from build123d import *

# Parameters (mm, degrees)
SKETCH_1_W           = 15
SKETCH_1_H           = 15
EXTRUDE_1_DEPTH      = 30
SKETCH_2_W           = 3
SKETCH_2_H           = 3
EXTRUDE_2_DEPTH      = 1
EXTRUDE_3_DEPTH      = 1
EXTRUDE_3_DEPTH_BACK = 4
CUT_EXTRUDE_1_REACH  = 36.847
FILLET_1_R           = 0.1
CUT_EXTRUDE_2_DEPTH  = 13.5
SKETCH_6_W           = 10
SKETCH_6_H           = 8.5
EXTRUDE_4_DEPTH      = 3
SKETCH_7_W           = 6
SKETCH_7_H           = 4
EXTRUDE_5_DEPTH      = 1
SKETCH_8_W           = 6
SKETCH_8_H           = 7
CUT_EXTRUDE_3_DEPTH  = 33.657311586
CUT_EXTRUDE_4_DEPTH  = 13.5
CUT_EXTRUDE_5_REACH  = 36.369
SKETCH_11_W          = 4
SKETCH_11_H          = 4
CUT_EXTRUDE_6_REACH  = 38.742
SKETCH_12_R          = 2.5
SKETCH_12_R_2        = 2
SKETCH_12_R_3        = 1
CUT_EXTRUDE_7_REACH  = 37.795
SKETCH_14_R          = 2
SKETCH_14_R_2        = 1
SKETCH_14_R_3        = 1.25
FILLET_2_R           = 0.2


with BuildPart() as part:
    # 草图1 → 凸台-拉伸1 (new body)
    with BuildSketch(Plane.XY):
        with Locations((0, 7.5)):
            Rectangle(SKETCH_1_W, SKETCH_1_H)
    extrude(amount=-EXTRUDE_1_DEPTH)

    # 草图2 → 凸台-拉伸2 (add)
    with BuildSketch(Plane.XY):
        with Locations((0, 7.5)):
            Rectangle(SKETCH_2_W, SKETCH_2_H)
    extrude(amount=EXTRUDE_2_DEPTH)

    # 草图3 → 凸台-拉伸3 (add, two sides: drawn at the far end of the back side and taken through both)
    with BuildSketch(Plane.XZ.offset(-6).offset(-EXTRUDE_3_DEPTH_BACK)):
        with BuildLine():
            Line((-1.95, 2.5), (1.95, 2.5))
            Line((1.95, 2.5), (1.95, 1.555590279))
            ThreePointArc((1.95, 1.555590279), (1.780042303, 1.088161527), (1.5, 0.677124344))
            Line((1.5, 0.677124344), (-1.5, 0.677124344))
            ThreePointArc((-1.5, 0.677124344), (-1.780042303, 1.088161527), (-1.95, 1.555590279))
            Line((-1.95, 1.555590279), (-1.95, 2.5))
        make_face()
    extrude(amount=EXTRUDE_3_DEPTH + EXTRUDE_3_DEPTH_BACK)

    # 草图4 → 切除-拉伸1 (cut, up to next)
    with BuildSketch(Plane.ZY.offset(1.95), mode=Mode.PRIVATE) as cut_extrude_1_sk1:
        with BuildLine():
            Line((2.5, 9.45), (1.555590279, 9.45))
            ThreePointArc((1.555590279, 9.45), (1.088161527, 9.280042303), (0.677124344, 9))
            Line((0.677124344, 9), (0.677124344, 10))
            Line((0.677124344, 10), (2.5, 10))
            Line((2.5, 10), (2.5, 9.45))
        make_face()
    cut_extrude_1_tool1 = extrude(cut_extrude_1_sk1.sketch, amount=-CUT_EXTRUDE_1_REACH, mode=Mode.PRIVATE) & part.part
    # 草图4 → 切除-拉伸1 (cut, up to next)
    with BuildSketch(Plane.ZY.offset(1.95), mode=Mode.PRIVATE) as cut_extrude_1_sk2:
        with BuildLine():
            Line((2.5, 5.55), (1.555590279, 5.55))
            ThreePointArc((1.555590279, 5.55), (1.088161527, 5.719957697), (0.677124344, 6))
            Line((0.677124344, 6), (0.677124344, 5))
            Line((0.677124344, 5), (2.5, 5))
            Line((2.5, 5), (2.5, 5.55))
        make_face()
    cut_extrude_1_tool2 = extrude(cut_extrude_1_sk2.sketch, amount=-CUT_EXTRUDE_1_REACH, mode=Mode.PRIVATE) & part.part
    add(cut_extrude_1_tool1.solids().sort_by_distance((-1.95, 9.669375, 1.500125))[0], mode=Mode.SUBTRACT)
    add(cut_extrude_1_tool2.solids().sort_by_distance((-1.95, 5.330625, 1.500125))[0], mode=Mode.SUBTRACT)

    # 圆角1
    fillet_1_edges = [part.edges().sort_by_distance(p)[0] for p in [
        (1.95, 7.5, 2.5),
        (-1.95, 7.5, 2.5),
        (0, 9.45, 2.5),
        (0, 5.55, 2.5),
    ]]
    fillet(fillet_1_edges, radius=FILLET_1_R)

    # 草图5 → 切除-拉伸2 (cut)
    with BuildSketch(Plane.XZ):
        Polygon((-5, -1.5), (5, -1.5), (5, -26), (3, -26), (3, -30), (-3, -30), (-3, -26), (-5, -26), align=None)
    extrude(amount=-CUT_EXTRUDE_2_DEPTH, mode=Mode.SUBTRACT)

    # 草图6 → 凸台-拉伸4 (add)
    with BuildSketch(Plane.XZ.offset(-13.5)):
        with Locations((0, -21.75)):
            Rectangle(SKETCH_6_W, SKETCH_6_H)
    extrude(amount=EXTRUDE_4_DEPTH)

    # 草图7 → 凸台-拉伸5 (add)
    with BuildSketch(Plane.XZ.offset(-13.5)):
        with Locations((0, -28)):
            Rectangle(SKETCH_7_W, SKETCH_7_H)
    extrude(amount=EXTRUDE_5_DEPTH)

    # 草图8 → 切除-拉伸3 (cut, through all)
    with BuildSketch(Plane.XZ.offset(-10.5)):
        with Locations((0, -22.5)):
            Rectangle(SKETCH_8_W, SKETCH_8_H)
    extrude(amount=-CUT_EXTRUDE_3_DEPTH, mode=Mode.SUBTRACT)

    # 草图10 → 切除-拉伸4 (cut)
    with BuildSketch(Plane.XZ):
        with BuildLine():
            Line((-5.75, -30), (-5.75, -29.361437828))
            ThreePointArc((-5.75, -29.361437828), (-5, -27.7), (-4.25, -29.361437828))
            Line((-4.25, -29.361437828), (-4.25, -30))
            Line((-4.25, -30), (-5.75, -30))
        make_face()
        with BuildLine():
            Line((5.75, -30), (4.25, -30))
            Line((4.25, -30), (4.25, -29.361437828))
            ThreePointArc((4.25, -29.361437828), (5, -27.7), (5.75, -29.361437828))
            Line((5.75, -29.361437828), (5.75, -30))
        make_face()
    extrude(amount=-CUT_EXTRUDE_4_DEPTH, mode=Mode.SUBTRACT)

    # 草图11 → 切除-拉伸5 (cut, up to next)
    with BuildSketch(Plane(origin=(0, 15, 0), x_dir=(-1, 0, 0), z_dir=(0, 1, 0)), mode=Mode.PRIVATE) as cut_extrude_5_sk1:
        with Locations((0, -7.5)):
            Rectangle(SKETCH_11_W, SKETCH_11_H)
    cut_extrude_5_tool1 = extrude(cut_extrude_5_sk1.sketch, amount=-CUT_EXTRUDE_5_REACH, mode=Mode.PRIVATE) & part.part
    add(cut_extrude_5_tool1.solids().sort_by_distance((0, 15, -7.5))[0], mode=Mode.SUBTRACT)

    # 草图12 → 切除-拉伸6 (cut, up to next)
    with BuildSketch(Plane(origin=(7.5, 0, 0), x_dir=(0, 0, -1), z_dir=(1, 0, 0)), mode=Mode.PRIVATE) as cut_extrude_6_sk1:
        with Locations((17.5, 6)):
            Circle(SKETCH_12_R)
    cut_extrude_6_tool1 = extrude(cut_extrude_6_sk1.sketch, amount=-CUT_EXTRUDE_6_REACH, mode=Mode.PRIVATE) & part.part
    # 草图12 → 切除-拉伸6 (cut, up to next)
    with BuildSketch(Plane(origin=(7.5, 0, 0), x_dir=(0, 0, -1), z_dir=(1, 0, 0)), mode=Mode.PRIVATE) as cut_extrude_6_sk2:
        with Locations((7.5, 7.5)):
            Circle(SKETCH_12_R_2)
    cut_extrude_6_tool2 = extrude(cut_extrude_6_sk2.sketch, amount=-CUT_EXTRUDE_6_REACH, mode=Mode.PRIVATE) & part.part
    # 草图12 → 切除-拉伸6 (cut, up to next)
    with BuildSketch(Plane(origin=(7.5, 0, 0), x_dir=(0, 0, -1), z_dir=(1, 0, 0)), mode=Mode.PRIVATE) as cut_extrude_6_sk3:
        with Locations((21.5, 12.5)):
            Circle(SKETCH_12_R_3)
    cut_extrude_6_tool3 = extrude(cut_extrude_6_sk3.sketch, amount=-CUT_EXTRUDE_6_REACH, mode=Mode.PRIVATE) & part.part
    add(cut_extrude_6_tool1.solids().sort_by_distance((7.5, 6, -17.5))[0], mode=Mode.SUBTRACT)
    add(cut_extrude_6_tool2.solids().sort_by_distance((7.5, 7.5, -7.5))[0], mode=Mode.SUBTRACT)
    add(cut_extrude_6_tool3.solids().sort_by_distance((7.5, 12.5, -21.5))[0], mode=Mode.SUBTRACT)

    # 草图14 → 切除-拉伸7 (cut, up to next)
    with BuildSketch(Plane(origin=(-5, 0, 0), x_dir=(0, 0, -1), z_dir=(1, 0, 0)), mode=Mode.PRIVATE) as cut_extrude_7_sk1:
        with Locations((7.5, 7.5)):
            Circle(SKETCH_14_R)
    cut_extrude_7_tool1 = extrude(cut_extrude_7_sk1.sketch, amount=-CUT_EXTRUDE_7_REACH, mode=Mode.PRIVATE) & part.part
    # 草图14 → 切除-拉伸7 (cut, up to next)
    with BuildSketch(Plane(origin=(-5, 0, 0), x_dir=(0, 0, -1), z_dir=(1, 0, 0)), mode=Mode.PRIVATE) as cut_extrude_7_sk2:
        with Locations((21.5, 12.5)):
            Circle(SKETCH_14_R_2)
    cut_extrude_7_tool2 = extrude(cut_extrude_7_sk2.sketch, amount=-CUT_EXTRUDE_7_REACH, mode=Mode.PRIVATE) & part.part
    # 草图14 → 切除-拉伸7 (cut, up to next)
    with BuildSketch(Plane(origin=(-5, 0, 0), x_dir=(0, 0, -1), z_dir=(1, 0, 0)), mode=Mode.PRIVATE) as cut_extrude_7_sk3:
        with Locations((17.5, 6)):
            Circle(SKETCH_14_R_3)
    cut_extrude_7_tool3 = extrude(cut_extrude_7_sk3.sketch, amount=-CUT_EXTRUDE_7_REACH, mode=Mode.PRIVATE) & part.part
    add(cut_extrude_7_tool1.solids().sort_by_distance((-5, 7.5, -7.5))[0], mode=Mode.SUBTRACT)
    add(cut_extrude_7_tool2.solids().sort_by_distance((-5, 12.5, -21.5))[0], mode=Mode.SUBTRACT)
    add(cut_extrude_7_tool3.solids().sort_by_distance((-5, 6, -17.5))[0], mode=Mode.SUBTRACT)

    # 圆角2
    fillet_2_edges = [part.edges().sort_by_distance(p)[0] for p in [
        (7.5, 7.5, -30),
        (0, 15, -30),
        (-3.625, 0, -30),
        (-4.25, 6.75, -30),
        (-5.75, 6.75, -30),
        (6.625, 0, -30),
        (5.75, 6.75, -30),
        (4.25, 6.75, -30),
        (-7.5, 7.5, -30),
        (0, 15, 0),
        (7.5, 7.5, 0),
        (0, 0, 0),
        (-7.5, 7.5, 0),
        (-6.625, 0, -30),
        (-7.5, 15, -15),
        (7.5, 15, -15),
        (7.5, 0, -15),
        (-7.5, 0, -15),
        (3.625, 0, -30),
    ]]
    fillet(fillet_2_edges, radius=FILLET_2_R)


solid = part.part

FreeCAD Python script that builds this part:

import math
import FreeCAD as App
import Part
import Sketcher
Q = App.Units.Quantity


def edges_at(feature, points):
    """Names of the edges that pass closest to the given points."""
    edges = feature.Shape.Edges
    near = lambda p: min(range(len(edges)), key=lambda i: edges[i].distToShape(Part.Vertex(*p))[0])
    return sorted({f"Edge{near(p) + 1}" for p in points})

doc = App.newDocument("Part")
params = doc.addObject("Spreadsheet::Sheet", "Params")
for row, (alias, value) in enumerate([
    ("sketch1_width", "15 mm"),
    ("pad1_length", "30 mm"),
    ("sketch2_width", "3 mm"),
    ("pad2_length", "1 mm"),
    ("sketch3_radius", "2 mm"),
    ("sketch3_width", "3 mm"),
    ("sketch3_width2", "3.9 mm"),
    ("pad3_length", "1 mm"),
    ("pad3_length2", "4 mm"),
    ("sketch4_radius", "2 mm"),
    ("sketch4_width", "1 mm"),
    ("sketch4_width2", "0.55 mm"),
    ("pocket1_length", "3.9 mm"),
    ("sketch5_radius", "2 mm"),
    ("sketch5_width", "1 mm"),
    ("sketch5_width2", "0.55 mm"),
    ("pocket2_length", "3.9 mm"),
    ("fillet_radius", "0.1 mm"),
    ("sketch6_width", "10 mm"),
    ("sketch6_width2", "2 mm"),
    ("sketch6_height", "4 mm"),
    ("sketch6_height2", "24.5 mm"),
    ("pocket3_length", "13.5 mm"),
    ("sketch7_width", "10 mm"),
    ("sketch7_height", "8.5 mm"),
    ("pad4_length", "3 mm"),
    ("sketch8_width", "6 mm"),
    ("sketch8_height", "4 mm"),
    ("pad5_length", "1 mm"),
    ("sketch9_width", "6 mm"),
    ("sketch9_height", "7 mm"),
    ("sketch10_radius", "1 mm"),
    ("sketch10_width", "1.5 mm"),
    ("pocket5_length", "13.5 mm"),
    ("sketch11_width", "4 mm"),
    ("sketch12_diameter", "5 mm"),
    ("sketch13_diameter", "4 mm"),
    ("sketch14_diameter", "2 mm"),
    ("sketch15_diameter", "4 mm"),
    ("sketch16_diameter", "2 mm"),
    ("sketch17_diameter", "2.5 mm"),
    ("fillet2_radius", "0.2 mm"),
], start=1):
    params.set(f"A{row}", alias)
    params.set(f"B{row}", "=" + value)
    params.setAlias(f"B{row}", alias)

body = doc.addObject("PartDesign::Body", "Body")

# Sketch on XY plane
sketch1 = body.newObject("Sketcher::SketchObject", "Sketch")
sketch1.AttachmentSupport = (doc.getObject("XY_Plane"), [""])
sketch1.MapMode = "FlatFace"
sketch1.addGeometry([
    Part.LineSegment(App.Vector(-8, 15, 0), App.Vector(-8, 0, 0)),
    Part.LineSegment(App.Vector(-8, 0, 0), App.Vector(8, 0, 0)),
    Part.LineSegment(App.Vector(8, 0, 0), App.Vector(8, 15, 0)),
    Part.LineSegment(App.Vector(8, 15, 0), App.Vector(-8, 15, 0)),
], False)
sketch1.addConstraint([
    Sketcher.Constraint("Coincident", 0, 2, 1, 1),
    Sketcher.Constraint("Coincident", 1, 2, 2, 1),
    Sketcher.Constraint("Coincident", 2, 2, 3, 1),
    Sketcher.Constraint("Coincident", 3, 2, 0, 1),
    Sketcher.Constraint("Vertical", 0),
    Sketcher.Constraint("Horizontal", 1),
    Sketcher.Constraint("Vertical", 2),
    Sketcher.Constraint("Horizontal", 3),
    Sketcher.Constraint("Symmetric", 0, 2, 1, 2, -1, 1),
    Sketcher.Constraint("Equal", 3, 0),
    Sketcher.Constraint("DistanceX", 1, 1, 1, 2, Q("15 mm")),
])
sketch1.setExpression("Constraints[10]", "Params.sketch1_width")
pad1 = body.newObject("PartDesign::Pad", "Pad")
pad1.Profile = sketch1
pad1.setExpression("Length", "Params.pad1_length")
pad1.Reversed = True

# Sketch on XY plane
sketch2 = body.newObject("Sketcher::SketchObject", "Sketch001")
sketch2.AttachmentSupport = (doc.getObject("XY_Plane"), [""])
sketch2.MapMode = "FlatFace"
sketch2.addGeometry([
    Part.LineSegment(App.Vector(-1.5, 9, 0), App.Vector(-1.5, 6, 0)),
    Part.LineSegment(App.Vector(-1.5, 6, 0), App.Vector(1.5, 6, 0)),
    Part.LineSegment(App.Vector(1.5, 6, 0), App.Vector(1.5, 9, 0)),
    Part.LineSegment(App.Vector(1.5, 9, 0), App.Vector(-1.5, 9, 0)),
], False)
sketch2.addConstraint([
    Sketcher.Constraint("Coincident", 0, 2, 1, 1),
    Sketcher.Constraint("Coincident", 1, 2, 2, 1),
    Sketcher.Constraint("Coincident", 2, 2, 3, 1),
    Sketcher.Constraint("Coincident", 3, 2, 0, 1),
    Sketcher.Constraint("Vertical", 0),
    Sketcher.Constraint("Horizontal", 1),
    Sketcher.Constraint("Vertical", 2),
    Sketcher.Constraint("Horizontal", 3),
    Sketcher.Constraint("Equal", 3, 0),
    Sketcher.Constraint("DistanceX", 1, 1, 1, 2, Q("3 mm")),
    Sketcher.Constraint("DistanceY", -1, 1, 0, 2, Q("6 mm")),
    Sketcher.Constraint("DistanceX", 0, 2, -1, 1, Q("1.5 mm")),
])
sketch2.setExpression("Constraints[9]", "Params.sketch2_width")
pad2 = body.newObject("PartDesign::Pad", "Pad001")
pad2.Profile = sketch2
pad2.setExpression("Length", "Params.pad2_length")

# Sketch on XZ plane
sketch3 = body.newObject("Sketcher::SketchObject", "Sketch002")
sketch3.AttachmentSupport = (doc.getObject("XZ_Plane"), [""])
sketch3.MapMode = "FlatFace"
sketch3.AttachmentOffset = App.Placement(App.Vector(0, 0, -6), App.Rotation())
sketch3.addGeometry([
    Part.LineSegment(App.Vector(1.9, 2.5, 0), App.Vector(-1.9, 2.5, 0)),  # 0
    Part.LineSegment(App.Vector(-1.9, 2.5, 0), App.Vector(-1.9, 1.6, 0)),  # 1
    Part.ArcOfCircle(Part.Circle(App.Vector(0, 2, 0), App.Vector(0, 0, 1), 2), math.radians(-167), math.radians(-139)),  # 2
    Part.LineSegment(App.Vector(-1.5, 0.7, 0), App.Vector(1.5, 0.7, 0)),  # 3
    Part.ArcOfCircle(Part.Circle(App.Vector(0, 2, 0), App.Vector(0, 0, 1), 2), math.radians(-41), math.radians(-13)),  # 4
    Part.LineSegment(App.Vector(1.9, 1.6, 0), App.Vector(1.9, 2.5, 0)),  # 5
], False)
sketch3.addConstraint([
    Sketcher.Constraint("Coincident", 0, 2, 1, 1),
    Sketcher.Constraint("Coincident", 1, 2, 2, 1),
    Sketcher.Constraint("Coincident", 2, 2, 3, 1),
    Sketcher.Constraint("Coincident", 3, 2, 4, 1),
    Sketcher.Constraint("Coincident", 4, 2, 5, 1),
    Sketcher.Constraint("Coincident", 5, 2, 0, 1),
    Sketcher.Constraint("Horizontal", 0),
    Sketcher.Constraint("Vertical", 1),
    Sketcher.Constraint("Horizontal", 3),
    Sketcher.Constraint("Vertical", 5),
    Sketcher.Constraint("Coincident", 4, 3, 2, 3),
    Sketcher.Constraint("Equal", 2, 4),
    Sketcher.Constraint("Symmetric", 1, 2, 4, 2, -2),
    Sketcher.Constraint("Radius", 2, Q("2 mm")),
    Sketcher.Constraint("DistanceX", 3, 1, 3, 2, Q("3 mm")),
    Sketcher.Constraint("DistanceX", 0, 2, 0, 1, Q("3.9 mm")),
    Sketcher.Constraint("DistanceY", -1, 1, 2, 3, Q("2 mm")),
    Sketcher.Constraint("DistanceY", -1, 1, 0, 2, Q("2.5 mm")),
])
sketch3.setExpression("Constraints[13]", "Params.sketch3_radius")
sketch3.setExpression("Constraints[14]", "Params.sketch3_width")
sketch3.setExpression("Constraints[15]", "Params.sketch3_width2")
pad3 = body.newObject("PartDesign::Pad", "Pad002")
pad3.Profile = sketch3
pad3.Type = "TwoLengths"
pad3.setExpression("Length", "Params.pad3_length")
pad3.setExpression("Length2", "Params.pad3_length2")

# Sketch on YZ plane
sketch4 = body.newObject("Sketcher::SketchObject", "Sketch003")
sketch4.AttachmentSupport = (doc.getObject("YZ_Plane"), [""])
sketch4.MapMode = "FlatFace"
sketch4.AttachmentOffset = App.Placement(App.Vector(0, 0, -1.95), App.Rotation())
sketch4.addGeometry([
    Part.LineSegment(App.Vector(9.4, 1.6, 0), App.Vector(9.4, 2.5, 0)),  # 0
    Part.LineSegment(App.Vector(9.4, 2.5, 0), App.Vector(10, 2.5, 0)),  # 1
    Part.LineSegment(App.Vector(10, 2.5, 0), App.Vector(10, 0.7, 0)),  # 2
    Part.LineSegment(App.Vector(10, 0.7, 0), App.Vector(9, 0.7, 0)),  # 3
    Part.ArcOfCircle(Part.Circle(App.Vector(7.5, 2, 0), App.Vector(0, 0, 1), 2), math.radians(-41), math.radians(-13)),  # 4
], False)
sketch4.addConstraint([
    Sketcher.Constraint("Coincident", 0, 2, 1, 1),
    Sketcher.Constraint("Coincident", 1, 2, 2, 1),
    Sketcher.Constraint("Coincident", 2, 2, 3, 1),
    Sketcher.Constraint("Coincident", 3, 2, 4, 1),
    Sketcher.Constraint("Coincident", 4, 2, 0, 1),
    Sketcher.Constraint("Vertical", 0),
    Sketcher.Constraint("Horizontal", 1),
    Sketcher.Constraint("Vertical", 2),
    Sketcher.Constraint("Horizontal", 3),
    Sketcher.Constraint("Radius", 4, Q("2 mm")),
    Sketcher.Constraint("DistanceX", 3, 2, 3, 1, Q("1 mm")),
    Sketcher.Constraint("DistanceY", -1, 1, 4, 3, Q("2 mm")),
    Sketcher.Constraint("DistanceX", -1, 1, 1, 2, Q("10 mm")),
    Sketcher.Constraint("DistanceX", 1, 1, 1, 2, Q("0.55 mm")),
    Sketcher.Constraint("DistanceX", -1, 1, 4, 3, Q("7.5 mm")),
    Sketcher.Constraint("DistanceY", -1, 1, 0, 2, Q("2.5 mm")),
])
sketch4.setExpression("Constraints[9]", "Params.sketch4_radius")
sketch4.setExpression("Constraints[10]", "Params.sketch4_width")
sketch4.setExpression("Constraints[13]", "Params.sketch4_width2")
pocket1 = body.newObject("PartDesign::Pocket", "Pocket")
pocket1.Profile = sketch4
pocket1.setExpression("Length", "Params.pocket1_length")
pocket1.Reversed = True

# Sketch on YZ plane
sketch5 = body.newObject("Sketcher::SketchObject", "Sketch004")
sketch5.AttachmentSupport = (doc.getObject("YZ_Plane"), [""])
sketch5.MapMode = "FlatFace"
sketch5.AttachmentOffset = App.Placement(App.Vector(0, 0, -1.95), App.Rotation())
sketch5.addGeometry([
    Part.LineSegment(App.Vector(5.5, 2.5, 0), App.Vector(5.5, 1.6, 0)),  # 0
    Part.ArcOfCircle(Part.Circle(App.Vector(7.5, 2, 0), App.Vector(0, 0, 1), 2), math.radians(-167), math.radians(-139)),  # 1
    Part.LineSegment(App.Vector(6, 0.7, 0), App.Vector(5, 0.7, 0)),  # 2
    Part.LineSegment(App.Vector(5, 0.7, 0), App.Vector(5, 2.5, 0)),  # 3
    Part.LineSegment(App.Vector(5, 2.5, 0), App.Vector(5.5, 2.5, 0)),  # 4
], False)
sketch5.addConstraint([
    Sketcher.Constraint("Coincident", 0, 2, 1, 1),
    Sketcher.Constraint("Coincident", 1, 2, 2, 1),
    Sketcher.Constraint("Coincident", 2, 2, 3, 1),
    Sketcher.Constraint("Coincident", 3, 2, 4, 1),
    Sketcher.Constraint("Coincident", 4, 2, 0, 1),
    Sketcher.Constraint("Vertical", 0),
    Sketcher.Constraint("Horizontal", 2),
    Sketcher.Constraint("Vertical", 3),
    Sketcher.Constraint("Horizontal", 4),
    Sketcher.Constraint("Radius", 1, Q("2 mm")),
    Sketcher.Constraint("DistanceX", 2, 2, 2, 1, Q("1 mm")),
    Sketcher.Constraint("DistanceY", -1, 1, 1, 3, Q("2 mm")),
    Sketcher.Constraint("DistanceX", -1, 1, 1, 2, Q("6 mm")),
    Sketcher.Constraint("DistanceX", 4, 1, 4, 2, Q("0.55 mm")),
    Sketcher.Constraint("DistanceX", -1, 1, 1, 3, Q("7.5 mm")),
    Sketcher.Constraint("DistanceY", -1, 1, 3, 2, Q("2.5 mm")),
])
sketch5.setExpression("Constraints[9]", "Params.sketch5_radius")
sketch5.setExpression("Constraints[10]", "Params.sketch5_width")
sketch5.setExpression("Constraints[13]", "Params.sketch5_width2")
pocket2 = body.newObject("PartDesign::Pocket", "Pocket001")
pocket2.Profile = sketch5
pocket2.setExpression("Length", "Params.pocket2_length")
pocket2.Reversed = True
doc.recompute()

fillet = body.newObject("PartDesign::Fillet", "Fillet")
fillet.Base = (pocket2, edges_at(pocket2, [
    (1.95, 7.5, 2.5),
    (-1.95, 7.5, 2.5),
    (0, 9.45, 2.5),
    (0, 5.55, 2.5),
]))
fillet.setExpression("Radius", "Params.fillet_radius")

# Sketch on XZ plane
sketch6 = body.newObject("Sketcher::SketchObject", "Sketch005")
sketch6.AttachmentSupport = (doc.getObject("XZ_Plane"), [""])
sketch6.MapMode = "FlatFace"
sketch6.addGeometry([
    Part.LineSegment(App.Vector(5, -1.5, 0), App.Vector(-5, -1.5, 0)),  # 0
    Part.LineSegment(App.Vector(-5, -1.5, 0), App.Vector(-5, -26, 0)),  # 1
    Part.LineSegment(App.Vector(-5, -26, 0), App.Vector(-3, -26, 0)),  # 2
    Part.LineSegment(App.Vector(-3, -26, 0), App.Vector(-3, -30, 0)),  # 3
    Part.LineSegment(App.Vector(-3, -30, 0), App.Vector(3, -30, 0)),  # 4
    Part.LineSegment(App.Vector(3, -30, 0), App.Vector(3, -26, 0)),  # 5
    Part.LineSegment(App.Vector(3, -26, 0), App.Vector(5, -26, 0)),  # 6
    Part.LineSegment(App.Vector(5, -26, 0), App.Vector(5, -1.5, 0)),  # 7
], False)
sketch6.addConstraint([
    Sketcher.Constraint("Coincident", 0, 2, 1, 1),
    Sketcher.Constraint("Coincident", 1, 2, 2, 1),
    Sketcher.Constraint("Coincident", 2, 2, 3, 1),
    Sketcher.Constraint("Coincident", 3, 2, 4, 1),
    Sketcher.Constraint("Coincident", 4, 2, 5, 1),
    Sketcher.Constraint("Coincident", 5, 2, 6, 1),
    Sketcher.Constraint("Coincident", 6, 2, 7, 1),
    Sketcher.Constraint("Coincident", 7, 2, 0, 1),
    Sketcher.Constraint("Horizontal", 0),
    Sketcher.Constraint("Vertical", 1),
    Sketcher.Constraint("Horizontal", 2),
    Sketcher.Constraint("Vertical", 3),
    Sketcher.Constraint("Horizontal", 4),
    Sketcher.Constraint("Vertical", 5),
    Sketcher.Constraint("Horizontal", 6),
    Sketcher.Constraint("Vertical", 7),
    Sketcher.Constraint("Symmetric", 2, 2, 5, 2, -2),
    Sketcher.Constraint("Equal", 2, 6),
    Sketcher.Constraint("DistanceX", 0, 2, 0, 1, Q("10 mm")),
    Sketcher.Constraint("DistanceX", 2, 1, 2, 2, Q("2 mm")),
    Sketcher.Constraint("DistanceY", 3, 2, 3, 1, Q("4 mm")),
    Sketcher.Constraint("DistanceY", 1, 2, 1, 1, Q("24.5 mm")),
    Sketcher.Constraint("DistanceY", 1, 2, -1, 1, Q("26 mm")),
])
sketch6.setExpression("Constraints[18]", "Params.sketch6_width")
sketch6.setExpression("Constraints[19]", "Params.sketch6_width2")
sketch6.setExpression("Constraints[20]", "Params.sketch6_height")
sketch6.setExpression("Constraints[21]", "Params.sketch6_height2")
pocket3 = body.newObject("PartDesign::Pocket", "Pocket002")
pocket3.Profile = sketch6
pocket3.setExpression("Length", "Params.pocket3_length")

# Sketch on XZ plane
sketch7 = body.newObject("Sketcher::SketchObject", "Sketch006")
sketch7.AttachmentSupport = (doc.getObject("XZ_Plane"), [""])
sketch7.MapMode = "FlatFace"
sketch7.AttachmentOffset = App.Placement(App.Vector(0, 0, -13.5), App.Rotation())
sketch7.addGeometry([
    Part.LineSegment(App.Vector(-5, -18, 0), App.Vector(-5, -26, 0)),
    Part.LineSegment(App.Vector(-5, -26, 0), App.Vector(5, -26, 0)),
    Part.LineSegment(App.Vector(5, -26, 0), App.Vector(5, -18, 0)),
    Part.LineSegment(App.Vector(5, -18, 0), App.Vector(-5, -18, 0)),
], False)
sketch7.addConstraint([
    Sketcher.Constraint("Coincident", 0, 2, 1, 1),
    Sketcher.Constraint("Coincident", 1, 2, 2, 1),
    Sketcher.Constraint("Coincident", 2, 2, 3, 1),
    Sketcher.Constraint("Coincident", 3, 2, 0, 1),
    Sketcher.Constraint("Vertical", 0),
    Sketcher.Constraint("Horizontal", 1),
    Sketcher.Constraint("Vertical", 2),
    Sketcher.Constraint("Horizontal", 3),
    Sketcher.Constraint("DistanceX", 1, 1, 1, 2, Q("10 mm")),
    Sketcher.Constraint("DistanceY", 0, 2, 0, 1, Q("8.5 mm")),
    Sketcher.Constraint("DistanceX", 0, 2, -1, 1, Q("5 mm")),
    Sketcher.Constraint("DistanceY", 0, 2, -1, 1, Q("26 mm")),
])
sketch7.setExpression("Constraints[8]", "Params.sketch7_width")
sketch7.setExpression("Constraints[9]", "Params.sketch7_height")
pad4 = body.newObject("PartDesign::Pad", "Pad003")
pad4.Profile = sketch7
pad4.setExpression("Length", "Params.pad4_length")

# Sketch on XZ plane
sketch8 = body.newObject("Sketcher::SketchObject", "Sketch007")
sketch8.AttachmentSupport = (doc.getObject("XZ_Plane"), [""])
sketch8.MapMode = "FlatFace"
sketch8.AttachmentOffset = App.Placement(App.Vector(0, 0, -13.5), App.Rotation())
sketch8.addGeometry([
    Part.LineSegment(App.Vector(-3, -26, 0), App.Vector(-3, -30, 0)),
    Part.LineSegment(App.Vector(-3, -30, 0), App.Vector(3, -30, 0)),
    Part.LineSegment(App.Vector(3, -30, 0), App.Vector(3, -26, 0)),
    Part.LineSegment(App.Vector(3, -26, 0), App.Vector(-3, -26, 0)),
], False)
sketch8.addConstraint([
    Sketcher.Constraint("Coincident", 0, 2, 1, 1),
    Sketcher.Constraint("Coincident", 1, 2, 2, 1),
    Sketcher.Constraint("Coincident", 2, 2, 3, 1),
    Sketcher.Constraint("Coincident", 3, 2, 0, 1),
    Sketcher.Constraint("Vertical", 0),
    Sketcher.Constraint("Horizontal", 1),
    Sketcher.Constraint("Vertical", 2),
    Sketcher.Constraint("Horizontal", 3),
    Sketcher.Constraint("DistanceX", 1, 1, 1, 2, Q("6 mm")),
    Sketcher.Constraint("DistanceY", 0, 2, 0, 1, Q("4 mm")),
    Sketcher.Constraint("DistanceX", 0, 2, -1, 1, Q("3 mm")),
    Sketcher.Constraint("DistanceY", 0, 2, -1, 1, Q("30 mm")),
])
sketch8.setExpression("Constraints[8]", "Params.sketch8_width")
sketch8.setExpression("Constraints[9]", "Params.sketch8_height")
pad5 = body.newObject("PartDesign::Pad", "Pad004")
pad5.Profile = sketch8
pad5.setExpression("Length", "Params.pad5_length")

# Sketch on XZ plane
sketch9 = body.newObject("Sketcher::SketchObject", "Sketch008")
sketch9.AttachmentSupport = (doc.getObject("XZ_Plane"), [""])
sketch9.MapMode = "FlatFace"
sketch9.AttachmentOffset = App.Placement(App.Vector(0, 0, -10.5), App.Rotation())
sketch9.addGeometry([
    Part.LineSegment(App.Vector(-3, -19, 0), App.Vector(-3, -26, 0)),
    Part.LineSegment(App.Vector(-3, -26, 0), App.Vector(3, -26, 0)),
    Part.LineSegment(App.Vector(3, -26, 0), App.Vector(3, -19, 0)),
    Part.LineSegment(App.Vector(3, -19, 0), App.Vector(-3, -19, 0)),
], False)
sketch9.addConstraint([
    Sketcher.Constraint("Coincident", 0, 2, 1, 1),
    Sketcher.Constraint("Coincident", 1, 2, 2, 1),
    Sketcher.Constraint("Coincident", 2, 2, 3, 1),
    Sketcher.Constraint("Coincident", 3, 2, 0, 1),
    Sketcher.Constraint("Vertical", 0),
    Sketcher.Constraint("Horizontal", 1),
    Sketcher.Constraint("Vertical", 2),
    Sketcher.Constraint("Horizontal", 3),
    Sketcher.Constraint("DistanceX", 1, 1, 1, 2, Q("6 mm")),
    Sketcher.Constraint("DistanceY", 0, 2, 0, 1, Q("7 mm")),
    Sketcher.Constraint("DistanceX", 0, 2, -1, 1, Q("3 mm")),
    Sketcher.Constraint("DistanceY", 0, 2, -1, 1, Q("26 mm")),
])
sketch9.setExpression("Constraints[8]", "Params.sketch9_width")
sketch9.setExpression("Constraints[9]", "Params.sketch9_height")
pocket4 = body.newObject("PartDesign::Pocket", "Pocket003")
pocket4.Profile = sketch9
pocket4.Type = "ThroughAll"

# Sketch on XZ plane
sketch10 = body.newObject("Sketcher::SketchObject", "Sketch009")
sketch10.AttachmentSupport = (doc.getObject("XZ_Plane"), [""])
sketch10.MapMode = "FlatFace"
sketch10.addGeometry([
    Part.LineSegment(App.Vector(-5.8, -29.4, 0), App.Vector(-5.8, -30, 0)),  # 0
    Part.LineSegment(App.Vector(-5.8, -30, 0), App.Vector(-4.2, -30, 0)),  # 1
    Part.LineSegment(App.Vector(-4.2, -30, 0), App.Vector(-4.2, -29.4, 0)),  # 2
    Part.ArcOfCircle(Part.Circle(App.Vector(-5, -28.7, 0), App.Vector(0, 0, 1), 1), math.radians(-41), math.radians(221)),  # 3
    Part.LineSegment(App.Vector(4.2, -30, 0), App.Vector(5.8, -30, 0)),  # 4
    Part.LineSegment(App.Vector(5.8, -30, 0), App.Vector(5.8, -29.4, 0)),  # 5
    Part.ArcOfCircle(Part.Circle(App.Vector(5, -28.7, 0), App.Vector(0, 0, 1), 1), math.radians(-41), math.radians(221)),  # 6
    Part.LineSegment(App.Vector(4.2, -29.4, 0), App.Vector(4.2, -30, 0)),  # 7
], False)
sketch10.addConstraint([
    Sketcher.Constraint("Coincident", 0, 2, 1, 1),
    Sketcher.Constraint("Coincident", 1, 2, 2, 1),
    Sketcher.Constraint("Coincident", 2, 2, 3, 1),
    Sketcher.Constraint("Coincident", 3, 2, 0, 1),
    Sketcher.Constraint("Coincident", 4, 2, 5, 1),
    Sketcher.Constraint("Coincident", 5, 2, 6, 1),
    Sketcher.Constraint("Coincident", 6, 2, 7, 1),
    Sketcher.Constraint("Coincident", 7, 2, 4, 1),
    Sketcher.Constraint("Vertical", 0),
    Sketcher.Constraint("Horizontal", 1),
    Sketcher.Constraint("Vertical", 2),
    Sketcher.Constraint("Horizontal", 4),
    Sketcher.Constraint("Vertical", 5),
    Sketcher.Constraint("Vertical", 7),
    Sketcher.Constraint("Equal", 3, 6),
    Sketcher.Constraint("Symmetric", 3, 3, 6, 3, -2),
    Sketcher.Constraint("Symmetric", 0, 2, 4, 2, -2),
    Sketcher.Constraint("Horizontal", 2, 2, 3, 2),
    Sketcher.Constraint("Horizontal", 5, 2, 6, 2),
    Sketcher.Constraint("Radius", 3, Q("1 mm")),
    Sketcher.Constraint("DistanceX", 1, 1, 1, 2, Q("1.5 mm")),
    Sketcher.Constraint("DistanceX", 3, 3, -1, 1, Q("5 mm")),
    Sketcher.Constraint("DistanceY", 0, 2, -1, 1, Q("30 mm")),
    Sketcher.Constraint("DistanceY", 3, 3, -1, 1, Q("28.7 mm")),
])
sketch10.setExpression("Constraints[19]", "Params.sketch10_radius")
sketch10.setExpression("Constraints[20]", "Params.sketch10_width")
pocket5 = body.newObject("PartDesign::Pocket", "Pocket004")
pocket5.Profile = sketch10
pocket5.setExpression("Length", "Params.pocket5_length")

# Sketch on XZ plane
sketch11 = body.newObject("Sketcher::SketchObject", "Sketch010")
sketch11.AttachmentSupport = (doc.getObject("XZ_Plane"), [""])
sketch11.MapMode = "FlatFace"
sketch11.AttachmentOffset = App.Placement(App.Vector(0, 0, -15), App.Rotation())
sketch11.addGeometry([
    Part.LineSegment(App.Vector(2, -5.5, 0), App.Vector(2, -9.5, 0)),
    Part.LineSegment(App.Vector(2, -9.5, 0), App.Vector(-2, -9.5, 0)),
    Part.LineSegment(App.Vector(-2, -9.5, 0), App.Vector(-2, -5.5, 0)),
    Part.LineSegment(App.Vector(-2, -5.5, 0), App.Vector(2, -5.5, 0)),
], False)
sketch11.addConstraint([
    Sketcher.Constraint("Coincident", 0, 2, 1, 1),
    Sketcher.Constraint("Coincident", 1, 2, 2, 1),
    Sketcher.Constraint("Coincident", 2, 2, 3, 1),
    Sketcher.Constraint("Coincident", 3, 2, 0, 1),
    Sketcher.Constraint("Vertical", 0),
    Sketcher.Constraint("Horizontal", 1),
    Sketcher.Constraint("Vertical", 2),
    Sketcher.Constraint("Horizontal", 3),
    Sketcher.Constraint("Equal", 3, 0),
    Sketcher.Constraint("DistanceX", 1, 2, 1, 1, Q("4 mm")),
    Sketcher.Constraint("DistanceX", -1, 1, 0, 2, Q("2 mm")),
    Sketcher.Constraint("DistanceY", 0, 2, -1, 1, Q("9.5 mm")),
])
sketch11.setExpression("Constraints[9]", "Params.sketch11_width")
pocket6 = body.newObject("PartDesign::Pocket", "Pocket005")
pocket6.Profile = sketch11
pocket6.Type = "UpToFirst"
pocket6.Reversed = True

# Sketch on YZ plane
sketch12 = body.newObject("Sketcher::SketchObject", "Sketch011")
sketch12.AttachmentSupport = (doc.getObject("YZ_Plane"), [""])
sketch12.MapMode = "FlatFace"
sketch12.AttachmentOffset = App.Placement(App.Vector(0, 0, 7.5), App.Rotation())
sketch12.addGeometry(Part.Circle(App.Vector(6, -17.5, 0), App.Vector(0, 0, 1), 2.5), False)
sketch12.addConstraint([
    Sketcher.Constraint("Diameter", 0, Q("5 mm")),
    Sketcher.Constraint("DistanceX", -1, 1, 0, 3, Q("6 mm")),
    Sketcher.Constraint("DistanceY", 0, 3, -1, 1, Q("17.5 mm")),
])
sketch12.setExpression("Constraints[0]", "Params.sketch12_diameter")
pocket7 = body.newObject("PartDesign::Pocket", "Pocket006")
pocket7.Profile = sketch12
pocket7.Type = "UpToFirst"

# Sketch on YZ plane
sketch13 = body.newObject("Sketcher::SketchObject", "Sketch012")
sketch13.AttachmentSupport = (doc.getObject("YZ_Plane"), [""])
sketch13.MapMode = "FlatFace"
sketch13.AttachmentOffset = App.Placement(App.Vector(0, 0, 7.5), App.Rotation())
sketch13.addGeometry(Part.Circle(App.Vector(7.5, -7.5, 0), App.Vector(0, 0, 1), 2), False)
sketch13.addConstraint([
    Sketcher.Constraint("Diameter", 0, Q("4 mm")),
    Sketcher.Constraint("DistanceX", -1, 1, 0, 3, Q("7.5 mm")),
    Sketcher.Constraint("DistanceY", 0, 3, -1, 1, Q("7.5 mm")),
])
sketch13.setExpression("Constraints[0]", "Params.sketch13_diameter")
pocket8 = body.newObject("PartDesign::Pocket", "Pocket007")
pocket8.Profile = sketch13
pocket8.Type = "UpToFirst"

# Sketch on YZ plane
sketch14 = body.newObject("Sketcher::SketchObject", "Sketch013")
sketch14.AttachmentSupport = (doc.getObject("YZ_Plane"), [""])
sketch14.MapMode = "FlatFace"
sketch14.AttachmentOffset = App.Placement(App.Vector(0, 0, 7.5), App.Rotation())
sketch14.addGeometry(Part.Circle(App.Vector(12.5, -21.5, 0), App.Vector(0, 0, 1), 1), False)
sketch14.addConstraint([
    Sketcher.Constraint("Diameter", 0, Q("2 mm")),
    Sketcher.Constraint("DistanceX", -1, 1, 0, 3, Q("12.5 mm")),
    Sketcher.Constraint("DistanceY", 0, 3, -1, 1, Q("21.5 mm")),
])
sketch14.setExpression("Constraints[0]", "Params.sketch14_diameter")
pocket9 = body.newObject("PartDesign::Pocket", "Pocket008")
pocket9.Profile = sketch14
pocket9.Type = "UpToFirst"

# Sketch on YZ plane
sketch15 = body.newObject("Sketcher::SketchObject", "Sketch014")
sketch15.AttachmentSupport = (doc.getObject("YZ_Plane"), [""])
sketch15.MapMode = "FlatFace"
sketch15.AttachmentOffset = App.Placement(App.Vector(0, 0, -5), App.Rotation())
sketch15.addGeometry(Part.Circle(App.Vector(7.5, -7.5, 0), App.Vector(0, 0, 1), 2), False)
sketch15.addConstraint([
    Sketcher.Constraint("Diameter", 0, Q("4 mm")),
    Sketcher.Constraint("DistanceX", -1, 1, 0, 3, Q("7.5 mm")),
    Sketcher.Constraint("DistanceY", 0, 3, -1, 1, Q("7.5 mm")),
])
sketch15.setExpression("Constraints[0]", "Params.sketch15_diameter")
pocket10 = body.newObject("PartDesign::Pocket", "Pocket009")
pocket10.Profile = sketch15
pocket10.Type = "UpToFirst"

# Sketch on YZ plane
sketch16 = body.newObject("Sketcher::SketchObject", "Sketch015")
sketch16.AttachmentSupport = (doc.getObject("YZ_Plane"), [""])
sketch16.MapMode = "FlatFace"
sketch16.AttachmentOffset = App.Placement(App.Vector(0, 0, -5), App.Rotation())
sketch16.addGeometry(Part.Circle(App.Vector(12.5, -21.5, 0), App.Vector(0, 0, 1), 1), False)
sketch16.addConstraint([
    Sketcher.Constraint("Diameter", 0, Q("2 mm")),
    Sketcher.Constraint("DistanceX", -1, 1, 0, 3, Q("12.5 mm")),
    Sketcher.Constraint("DistanceY", 0, 3, -1, 1, Q("21.5 mm")),
])
sketch16.setExpression("Constraints[0]", "Params.sketch16_diameter")
pocket11 = body.newObject("PartDesign::Pocket", "Pocket010")
pocket11.Profile = sketch16
pocket11.Type = "UpToFirst"

# Sketch on YZ plane
sketch17 = body.newObject("Sketcher::SketchObject", "Sketch016")
sketch17.AttachmentSupport = (doc.getObject("YZ_Plane"), [""])
sketch17.MapMode = "FlatFace"
sketch17.AttachmentOffset = App.Placement(App.Vector(0, 0, -5), App.Rotation())
sketch17.addGeometry(Part.Circle(App.Vector(6, -17.5, 0), App.Vector(0, 0, 1), 1.2), False)
sketch17.addConstraint([
    Sketcher.Constraint("Diameter", 0, Q("2.5 mm")),
    Sketcher.Constraint("DistanceX", -1, 1, 0, 3, Q("6 mm")),
    Sketcher.Constraint("DistanceY", 0, 3, -1, 1, Q("17.5 mm")),
])
sketch17.setExpression("Constraints[0]", "Params.sketch17_diameter")
pocket12 = body.newObject("PartDesign::Pocket", "Pocket011")
pocket12.Profile = sketch17
pocket12.Type = "UpToFirst"
doc.recompute()

fillet2 = body.newObject("PartDesign::Fillet", "Fillet001")
fillet2.Base = (pocket12, edges_at(pocket12, [
    (7.5, 7.5, -30),
    (0, 15, -30),
    (-3.625, 0, -30),
    (-4.25, 6.75, -30),
    (-5.75, 6.75, -30),
    (6.625, 0, -30),
    (5.75, 6.75, -30),
    (4.25, 6.75, -30),
    (-7.5, 7.5, -30),
    (0, 15, 0),
    (7.5, 7.5, 0),
    (0, 0, 0),
    (-7.5, 7.5, 0),
    (-6.625, 0, -30),
    (-7.5, 15, -15),
    (7.5, 15, -15),
    (7.5, 0, -15),
    (-7.5, 0, -15),
    (3.625, 0, -30),
]))
fillet2.setExpression("Radius", "Params.fillet2_radius")

doc.recompute()
